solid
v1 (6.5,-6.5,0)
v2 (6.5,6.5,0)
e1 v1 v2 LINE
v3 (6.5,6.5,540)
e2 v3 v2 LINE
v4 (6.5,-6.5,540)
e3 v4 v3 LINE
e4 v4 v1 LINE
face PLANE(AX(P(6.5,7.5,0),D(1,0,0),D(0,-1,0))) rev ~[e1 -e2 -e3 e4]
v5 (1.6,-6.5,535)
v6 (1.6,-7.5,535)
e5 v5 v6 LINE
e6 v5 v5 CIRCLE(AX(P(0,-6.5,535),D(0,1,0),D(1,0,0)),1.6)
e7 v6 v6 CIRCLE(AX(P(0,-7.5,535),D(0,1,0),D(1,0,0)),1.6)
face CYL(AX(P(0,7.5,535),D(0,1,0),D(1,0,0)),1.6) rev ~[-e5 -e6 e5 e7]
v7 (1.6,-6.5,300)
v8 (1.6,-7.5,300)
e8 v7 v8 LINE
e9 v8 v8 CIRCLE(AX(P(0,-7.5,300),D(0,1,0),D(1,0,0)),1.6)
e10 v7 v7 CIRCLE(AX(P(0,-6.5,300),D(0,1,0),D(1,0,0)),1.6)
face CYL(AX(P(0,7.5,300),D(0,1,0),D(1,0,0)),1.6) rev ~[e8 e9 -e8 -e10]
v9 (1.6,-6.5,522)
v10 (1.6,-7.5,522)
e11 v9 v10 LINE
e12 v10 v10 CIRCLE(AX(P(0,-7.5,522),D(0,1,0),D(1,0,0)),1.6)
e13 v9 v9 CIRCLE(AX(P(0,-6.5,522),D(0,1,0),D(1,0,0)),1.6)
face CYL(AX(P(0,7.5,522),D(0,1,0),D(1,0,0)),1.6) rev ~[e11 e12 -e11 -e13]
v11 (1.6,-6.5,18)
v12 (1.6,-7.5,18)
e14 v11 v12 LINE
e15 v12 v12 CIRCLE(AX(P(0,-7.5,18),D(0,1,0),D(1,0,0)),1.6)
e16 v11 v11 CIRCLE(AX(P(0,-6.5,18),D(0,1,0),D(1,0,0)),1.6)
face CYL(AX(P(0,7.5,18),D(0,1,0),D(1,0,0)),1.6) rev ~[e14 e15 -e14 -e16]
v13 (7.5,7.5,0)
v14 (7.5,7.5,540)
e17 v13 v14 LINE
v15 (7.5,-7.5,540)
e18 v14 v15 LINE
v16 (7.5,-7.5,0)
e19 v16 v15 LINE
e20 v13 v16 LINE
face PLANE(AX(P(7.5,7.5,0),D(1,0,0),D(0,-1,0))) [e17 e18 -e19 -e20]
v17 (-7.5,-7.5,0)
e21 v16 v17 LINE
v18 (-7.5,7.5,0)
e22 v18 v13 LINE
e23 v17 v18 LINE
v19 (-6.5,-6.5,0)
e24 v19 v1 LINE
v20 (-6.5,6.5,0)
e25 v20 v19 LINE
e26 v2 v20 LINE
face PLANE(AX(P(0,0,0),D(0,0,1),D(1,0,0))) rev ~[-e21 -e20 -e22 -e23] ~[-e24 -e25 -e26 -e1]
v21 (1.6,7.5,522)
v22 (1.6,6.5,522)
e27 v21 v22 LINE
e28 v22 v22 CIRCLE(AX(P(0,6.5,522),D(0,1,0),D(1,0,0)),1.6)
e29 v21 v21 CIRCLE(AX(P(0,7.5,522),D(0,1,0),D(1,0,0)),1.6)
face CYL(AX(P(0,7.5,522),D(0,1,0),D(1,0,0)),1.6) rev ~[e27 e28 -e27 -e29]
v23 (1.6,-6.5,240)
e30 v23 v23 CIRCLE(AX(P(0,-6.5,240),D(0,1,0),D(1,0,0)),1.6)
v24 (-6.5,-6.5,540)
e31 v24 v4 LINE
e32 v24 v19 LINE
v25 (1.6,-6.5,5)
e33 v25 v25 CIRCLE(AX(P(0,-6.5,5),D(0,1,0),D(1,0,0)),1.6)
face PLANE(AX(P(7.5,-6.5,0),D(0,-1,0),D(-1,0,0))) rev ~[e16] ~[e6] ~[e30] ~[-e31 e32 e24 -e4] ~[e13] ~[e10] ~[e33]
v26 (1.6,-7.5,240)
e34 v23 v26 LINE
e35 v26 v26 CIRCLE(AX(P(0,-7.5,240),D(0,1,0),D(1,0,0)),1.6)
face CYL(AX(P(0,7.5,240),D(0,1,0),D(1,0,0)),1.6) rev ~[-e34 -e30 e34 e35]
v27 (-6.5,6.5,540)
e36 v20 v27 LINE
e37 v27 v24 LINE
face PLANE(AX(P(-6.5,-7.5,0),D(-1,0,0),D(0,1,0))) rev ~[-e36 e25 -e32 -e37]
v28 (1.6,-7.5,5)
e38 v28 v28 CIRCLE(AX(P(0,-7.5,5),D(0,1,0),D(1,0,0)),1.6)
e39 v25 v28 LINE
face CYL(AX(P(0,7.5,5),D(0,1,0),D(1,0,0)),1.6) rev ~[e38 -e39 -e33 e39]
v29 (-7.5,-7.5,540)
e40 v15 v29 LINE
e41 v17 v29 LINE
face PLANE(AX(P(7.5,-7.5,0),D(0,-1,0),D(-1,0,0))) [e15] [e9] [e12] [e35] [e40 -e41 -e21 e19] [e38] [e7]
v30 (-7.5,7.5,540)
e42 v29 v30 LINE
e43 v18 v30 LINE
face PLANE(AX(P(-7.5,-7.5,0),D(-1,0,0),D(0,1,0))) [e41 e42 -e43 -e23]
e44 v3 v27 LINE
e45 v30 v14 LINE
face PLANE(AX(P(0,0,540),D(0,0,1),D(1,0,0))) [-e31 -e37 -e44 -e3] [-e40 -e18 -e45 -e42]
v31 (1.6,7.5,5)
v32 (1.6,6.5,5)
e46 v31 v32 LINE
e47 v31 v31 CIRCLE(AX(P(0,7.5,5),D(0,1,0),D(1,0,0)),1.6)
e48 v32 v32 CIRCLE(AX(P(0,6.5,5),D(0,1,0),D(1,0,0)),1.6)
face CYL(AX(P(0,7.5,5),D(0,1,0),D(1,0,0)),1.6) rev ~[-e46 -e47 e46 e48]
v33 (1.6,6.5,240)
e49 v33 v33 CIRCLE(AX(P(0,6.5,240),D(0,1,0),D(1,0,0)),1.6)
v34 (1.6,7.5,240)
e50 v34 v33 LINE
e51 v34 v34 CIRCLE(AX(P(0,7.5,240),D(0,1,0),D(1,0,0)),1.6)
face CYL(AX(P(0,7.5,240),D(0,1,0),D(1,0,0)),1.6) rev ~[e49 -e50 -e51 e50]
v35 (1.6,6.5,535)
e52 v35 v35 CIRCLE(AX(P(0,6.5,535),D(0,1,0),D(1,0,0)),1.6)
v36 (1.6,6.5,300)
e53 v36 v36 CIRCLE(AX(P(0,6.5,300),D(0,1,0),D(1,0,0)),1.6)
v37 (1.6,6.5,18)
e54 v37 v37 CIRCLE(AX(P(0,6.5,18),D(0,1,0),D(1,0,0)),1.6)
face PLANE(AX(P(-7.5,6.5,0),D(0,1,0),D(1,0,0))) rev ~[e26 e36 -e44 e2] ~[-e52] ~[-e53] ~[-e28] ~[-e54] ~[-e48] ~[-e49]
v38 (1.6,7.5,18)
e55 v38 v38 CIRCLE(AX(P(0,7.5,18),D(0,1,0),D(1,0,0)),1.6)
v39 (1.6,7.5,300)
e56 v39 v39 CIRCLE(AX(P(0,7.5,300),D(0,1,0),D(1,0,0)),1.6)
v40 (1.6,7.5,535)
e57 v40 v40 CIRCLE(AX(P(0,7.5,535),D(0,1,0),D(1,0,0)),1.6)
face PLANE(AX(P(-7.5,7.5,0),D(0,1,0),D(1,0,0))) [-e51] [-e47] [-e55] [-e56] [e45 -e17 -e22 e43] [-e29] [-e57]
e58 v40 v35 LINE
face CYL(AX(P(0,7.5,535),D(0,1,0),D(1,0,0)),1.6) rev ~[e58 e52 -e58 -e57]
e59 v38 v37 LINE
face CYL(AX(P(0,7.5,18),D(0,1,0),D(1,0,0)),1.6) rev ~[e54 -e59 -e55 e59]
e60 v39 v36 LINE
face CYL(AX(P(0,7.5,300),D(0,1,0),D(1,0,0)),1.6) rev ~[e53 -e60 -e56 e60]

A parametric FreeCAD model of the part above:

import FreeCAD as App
import Part
import Sketcher
from FreeCAD import Vector
Q = App.Units.Quantity


def faces_at(feature, points):
    """Names of the faces that lie closest to the given points."""
    faces = feature.Shape.Faces
    near = lambda p: min(range(len(faces)), key=lambda i: faces[i].distToShape(Part.Vertex(*p))[0])
    return sorted({f"Face{near(p) + 1}" for p in points})

doc = App.newDocument("Part")
body = doc.addObject("PartDesign::Body", "Body")

sketch1 = doc.addObject("Sketcher::SketchObject", "Sketch")
body.addObject(sketch1)
sketch1.AttachmentSupport = (doc.XY_Plane, [""])
sketch1.MapMode = "FlatFace"
sketch1.addGeometry([
    Part.LineSegment(Vector(7.5, 7.5, 0), Vector(-7.5, 7.5, 0)),
    Part.LineSegment(Vector(-7.5, 7.5, 0), Vector(-7.5, -7.5, 0)),
    Part.LineSegment(Vector(-7.5, -7.5, 0), Vector(7.5, -7.5, 0)),
    Part.LineSegment(Vector(7.5, -7.5, 0), Vector(7.5, 7.5, 0)),
], False)
sketch1.addConstraint([
    Sketcher.Constraint("Coincident", 0, 2, 1, 1),
    Sketcher.Constraint("Coincident", 1, 2, 2, 1),
    Sketcher.Constraint("Coincident", 2, 2, 3, 1),
    Sketcher.Constraint("Coincident", 3, 2, 0, 1),
    Sketcher.Constraint("Horizontal", 0),
    Sketcher.Constraint("Vertical", 1),
    Sketcher.Constraint("Horizontal", 2),
    Sketcher.Constraint("Vertical", 3),
    Sketcher.Constraint("Symmetric", 0, 2, 2, 2, -1, 1),
    Sketcher.Constraint("Equal", 2, 1),
    Sketcher.Constraint("DistanceX", 0, 2, 0, 1, Q("15 mm")),
])
pad1 = doc.addObject("PartDesign::Pad", "Pad")
body.addObject(pad1)
pad1.Profile = sketch1
pad1.Length = 540
doc.recompute()

thickness = doc.addObject("PartDesign::Thickness", "Thickness")
body.addObject(thickness)
thickness.Base = (pad1, faces_at(pad1, [(-2.5, -2.5, 0), (-2.5, -2.5, 540)]))
thickness.Value = 1
thickness.Reversed = True
thickness.Join = "Intersection"

sketch2 = doc.addObject("Sketcher::SketchObject", "Sketch001")
body.addObject(sketch2)
sketch2.AttachmentSupport = (doc.XZ_Plane, [""])
sketch2.MapMode = "FlatFace"
sketch2.AttachmentOffset = App.Placement(Vector(0, 0, -7.5), App.Rotation())
sketch2.addGeometry([
    Part.Circle(Vector(0, 5, 0), Vector(0, 0, 1), 1.6),
    Part.Circle(Vector(0, 18, 0), Vector(0, 0, 1), 1.6),
    Part.Circle(Vector(0, 522, 0), Vector(0, 0, 1), 1.6),
    Part.Circle(Vector(0, 535, 0), Vector(0, 0, 1), 1.6),
], False)
sketch2.addConstraint([
    Sketcher.Constraint("Equal", 0, 1),
    Sketcher.Constraint("Equal", 1, 2),
    Sketcher.Constraint("Equal", 2, 3),
    Sketcher.Constraint("PointOnObject", 0, 3, -2),
    Sketcher.Constraint("PointOnObject", 1, 3, -2),
    Sketcher.Constraint("PointOnObject", 2, 3, -2),
    Sketcher.Constraint("PointOnObject", 3, 3, -2),
    Sketcher.Constraint("Diameter", 0, Q("3.2 mm")),
    Sketcher.Constraint("DistanceY", -1, 1, 0, 3, Q("5 mm")),
    Sketcher.Constraint("DistanceY", 0, 3, 1, 3, Q("13 mm")),
    Sketcher.Constraint("DistanceY", 2, 3, 3, 3, Q("13 mm")),
    Sketcher.Constraint("DistanceY", -1, 1, 2, 3, Q("522 mm")),
])
pocket1 = doc.addObject("PartDesign::Pocket", "Pocket")
body.addObject(pocket1)
pocket1.Profile = sketch2
pocket1.Type = "ThroughAll"
pocket1.Reversed = True

sketch3 = doc.addObject("Sketcher::SketchObject", "Sketch002")
body.addObject(sketch3)
sketch3.AttachmentSupport = (doc.XZ_Plane, [""])
sketch3.MapMode = "FlatFace"
sketch3.AttachmentOffset = App.Placement(Vector(0, 0, -7.5), App.Rotation())
sketch3.addGeometry([
    Part.Circle(Vector(0, 300, 0), Vector(0, 0, 1), 1.6),
    Part.Circle(Vector(0, 240, 0), Vector(0, 0, 1), 1.6),
], False)
sketch3.addConstraint([
    Sketcher.Constraint("Equal", 0, 1),
    Sketcher.Constraint("PointOnObject", 0, 3, -2),
    Sketcher.Constraint("PointOnObject", 1, 3, -2),
    Sketcher.Constraint("Diameter", 0, Q("3.2 mm")),
    Sketcher.Constraint("DistanceY", 1, 3, 0, 3, Q("60 mm")),
    Sketcher.Constraint("DistanceY", -1, 1, 0, 3, Q("300 mm")),
])
pocket2 = doc.addObject("PartDesign::Pocket", "Pocket001")
body.addObject(pocket2)
pocket2.Profile = sketch3
pocket2.Type = "ThroughAll"
pocket2.Reversed = True

doc.recompute()
